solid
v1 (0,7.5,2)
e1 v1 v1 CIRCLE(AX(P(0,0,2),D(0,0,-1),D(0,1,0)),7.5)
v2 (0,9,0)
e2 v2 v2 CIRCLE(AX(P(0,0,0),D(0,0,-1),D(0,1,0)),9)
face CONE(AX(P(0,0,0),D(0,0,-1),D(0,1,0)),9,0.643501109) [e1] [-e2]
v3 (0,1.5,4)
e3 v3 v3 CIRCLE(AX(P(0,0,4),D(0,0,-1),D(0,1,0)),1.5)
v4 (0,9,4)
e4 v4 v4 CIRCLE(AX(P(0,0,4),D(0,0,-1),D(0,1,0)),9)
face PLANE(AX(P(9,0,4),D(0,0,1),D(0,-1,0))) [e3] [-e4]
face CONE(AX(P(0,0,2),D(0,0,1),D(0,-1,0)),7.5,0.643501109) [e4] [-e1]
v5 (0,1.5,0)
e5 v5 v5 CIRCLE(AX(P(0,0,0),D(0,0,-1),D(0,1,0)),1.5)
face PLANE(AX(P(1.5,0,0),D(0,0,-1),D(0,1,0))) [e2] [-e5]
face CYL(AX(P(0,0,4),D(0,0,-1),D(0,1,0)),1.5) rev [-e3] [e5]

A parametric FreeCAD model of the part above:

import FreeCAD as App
import Part
import Sketcher
Q = App.Units.Quantity

doc = App.newDocument("Part")
body = doc.addObject("PartDesign::Body", "Body")

# Sketch on XZ plane
sketch1 = body.newObject("Sketcher::SketchObject", "Sketch")
sketch1.AttachmentSupport = (doc.getObject("XZ_Plane"), [""])
sketch1.MapMode = "FlatFace"
sketch1.addGeometry([
    Part.LineSegment(App.Vector(7.5, 2, 0), App.Vector(9, 4, 0)),  # 0
    Part.LineSegment(App.Vector(9, 4, 0), App.Vector(1.5, 4, 0)),  # 1
    Part.LineSegment(App.Vector(1.5, 4, 0), App.Vector(1.5, 0, 0)),  # 2
    Part.LineSegment(App.Vector(1.5, 0, 0), App.Vector(9, 0, 0)),  # 3
    Part.LineSegment(App.Vector(9, 0, 0), App.Vector(7.5, 2, 0)),  # 4
], False)
sketch1.addConstraint([
    Sketcher.Constraint("Coincident", 0, 2, 1, 1),
    Sketcher.Constraint("Coincident", 1, 2, 2, 1),
    Sketcher.Constraint("Coincident", 2, 2, 3, 1),
    Sketcher.Constraint("Coincident", 3, 2, 4, 1),
    Sketcher.Constraint("Coincident", 4, 2, 0, 1),
    Sketcher.Constraint("Horizontal", 1),
    Sketcher.Constraint("Vertical", 2),
    Sketcher.Constraint("Horizontal", 3),
    Sketcher.Constraint("PointOnObject", 2, 2, -1),
    Sketcher.Constraint("Vertical", 0, 2, 3, 2),
    Sketcher.Constraint("Equal", 0, 4),
    Sketcher.Constraint("DistanceY", 2, 2, 2, 1, Q("4 mm")),
    Sketcher.Constraint("DistanceX", 1, 2, 1, 1, Q("7.5 mm")),
    Sketcher.Constraint("DistanceX", -1, 1, 0, 2, Q("9 mm")),
    Sketcher.Constraint("DistanceX", 1, 2, 4, 2, Q("6 mm")),
])
revolution = body.newObject("PartDesign::Revolution", "Revolution")
revolution.Profile = sketch1
revolution.ReferenceAxis = (sketch1, ["V_Axis"])
revolution.Angle = 360

doc.recompute()
